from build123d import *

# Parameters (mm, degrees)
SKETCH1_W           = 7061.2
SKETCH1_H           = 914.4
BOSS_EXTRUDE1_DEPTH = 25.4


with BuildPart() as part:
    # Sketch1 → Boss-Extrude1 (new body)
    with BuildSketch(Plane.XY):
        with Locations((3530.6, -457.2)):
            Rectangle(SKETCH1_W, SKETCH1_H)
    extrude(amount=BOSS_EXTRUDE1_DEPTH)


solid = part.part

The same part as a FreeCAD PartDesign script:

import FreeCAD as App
import Part
import Sketcher

V = App.Vector
Q = App.Units.Quantity


def add_polygon(sketch, points):
    """Adds a closed chain of lines whose ends are joined by coincident constraints."""
    first, n = sketch.GeometryCount, len(points)
    for a, b in zip(points, points[1:] + points[:1]):
        sketch.addGeometry(Part.LineSegment(App.Vector(*a, 0), App.Vector(*b, 0)), False)
    for i in range(n):
        sketch.addConstraint(Sketcher.Constraint("Coincident", first + i, 2, first + (i + 1) % n, 1))

doc = App.newDocument("Part")
body = doc.addObject("PartDesign::Body", "Body")

# Sketch on XY plane
sketch1 = body.newObject("Sketcher::SketchObject", "Sketch")
sketch1.AttachmentSupport = (doc.getObject("XY_Plane"), [""])
sketch1.MapMode = "FlatFace"
add_polygon(sketch1, [(0, 0), (0, -914), (7061, -914), (7061, 0)])  # lines 0-3
sketch1.addConstraint([
    Sketcher.Constraint("Vertical", 0),
    Sketcher.Constraint("Horizontal", 1),
    Sketcher.Constraint("Vertical", 2),
    Sketcher.Constraint("Horizontal", 3),
    Sketcher.Constraint("Coincident", 3, 2, -1, 1),
    Sketcher.Constraint("DistanceX", 1, 1, 1, 2, Q("278 in")),
    Sketcher.Constraint("DistanceY", 0, 2, 0, 1, Q("36 in")),
])
pad1 = body.newObject("PartDesign::Pad", "Pad")
pad1.Profile = sketch1
pad1.Length = Q("1 in")

doc.recompute()
